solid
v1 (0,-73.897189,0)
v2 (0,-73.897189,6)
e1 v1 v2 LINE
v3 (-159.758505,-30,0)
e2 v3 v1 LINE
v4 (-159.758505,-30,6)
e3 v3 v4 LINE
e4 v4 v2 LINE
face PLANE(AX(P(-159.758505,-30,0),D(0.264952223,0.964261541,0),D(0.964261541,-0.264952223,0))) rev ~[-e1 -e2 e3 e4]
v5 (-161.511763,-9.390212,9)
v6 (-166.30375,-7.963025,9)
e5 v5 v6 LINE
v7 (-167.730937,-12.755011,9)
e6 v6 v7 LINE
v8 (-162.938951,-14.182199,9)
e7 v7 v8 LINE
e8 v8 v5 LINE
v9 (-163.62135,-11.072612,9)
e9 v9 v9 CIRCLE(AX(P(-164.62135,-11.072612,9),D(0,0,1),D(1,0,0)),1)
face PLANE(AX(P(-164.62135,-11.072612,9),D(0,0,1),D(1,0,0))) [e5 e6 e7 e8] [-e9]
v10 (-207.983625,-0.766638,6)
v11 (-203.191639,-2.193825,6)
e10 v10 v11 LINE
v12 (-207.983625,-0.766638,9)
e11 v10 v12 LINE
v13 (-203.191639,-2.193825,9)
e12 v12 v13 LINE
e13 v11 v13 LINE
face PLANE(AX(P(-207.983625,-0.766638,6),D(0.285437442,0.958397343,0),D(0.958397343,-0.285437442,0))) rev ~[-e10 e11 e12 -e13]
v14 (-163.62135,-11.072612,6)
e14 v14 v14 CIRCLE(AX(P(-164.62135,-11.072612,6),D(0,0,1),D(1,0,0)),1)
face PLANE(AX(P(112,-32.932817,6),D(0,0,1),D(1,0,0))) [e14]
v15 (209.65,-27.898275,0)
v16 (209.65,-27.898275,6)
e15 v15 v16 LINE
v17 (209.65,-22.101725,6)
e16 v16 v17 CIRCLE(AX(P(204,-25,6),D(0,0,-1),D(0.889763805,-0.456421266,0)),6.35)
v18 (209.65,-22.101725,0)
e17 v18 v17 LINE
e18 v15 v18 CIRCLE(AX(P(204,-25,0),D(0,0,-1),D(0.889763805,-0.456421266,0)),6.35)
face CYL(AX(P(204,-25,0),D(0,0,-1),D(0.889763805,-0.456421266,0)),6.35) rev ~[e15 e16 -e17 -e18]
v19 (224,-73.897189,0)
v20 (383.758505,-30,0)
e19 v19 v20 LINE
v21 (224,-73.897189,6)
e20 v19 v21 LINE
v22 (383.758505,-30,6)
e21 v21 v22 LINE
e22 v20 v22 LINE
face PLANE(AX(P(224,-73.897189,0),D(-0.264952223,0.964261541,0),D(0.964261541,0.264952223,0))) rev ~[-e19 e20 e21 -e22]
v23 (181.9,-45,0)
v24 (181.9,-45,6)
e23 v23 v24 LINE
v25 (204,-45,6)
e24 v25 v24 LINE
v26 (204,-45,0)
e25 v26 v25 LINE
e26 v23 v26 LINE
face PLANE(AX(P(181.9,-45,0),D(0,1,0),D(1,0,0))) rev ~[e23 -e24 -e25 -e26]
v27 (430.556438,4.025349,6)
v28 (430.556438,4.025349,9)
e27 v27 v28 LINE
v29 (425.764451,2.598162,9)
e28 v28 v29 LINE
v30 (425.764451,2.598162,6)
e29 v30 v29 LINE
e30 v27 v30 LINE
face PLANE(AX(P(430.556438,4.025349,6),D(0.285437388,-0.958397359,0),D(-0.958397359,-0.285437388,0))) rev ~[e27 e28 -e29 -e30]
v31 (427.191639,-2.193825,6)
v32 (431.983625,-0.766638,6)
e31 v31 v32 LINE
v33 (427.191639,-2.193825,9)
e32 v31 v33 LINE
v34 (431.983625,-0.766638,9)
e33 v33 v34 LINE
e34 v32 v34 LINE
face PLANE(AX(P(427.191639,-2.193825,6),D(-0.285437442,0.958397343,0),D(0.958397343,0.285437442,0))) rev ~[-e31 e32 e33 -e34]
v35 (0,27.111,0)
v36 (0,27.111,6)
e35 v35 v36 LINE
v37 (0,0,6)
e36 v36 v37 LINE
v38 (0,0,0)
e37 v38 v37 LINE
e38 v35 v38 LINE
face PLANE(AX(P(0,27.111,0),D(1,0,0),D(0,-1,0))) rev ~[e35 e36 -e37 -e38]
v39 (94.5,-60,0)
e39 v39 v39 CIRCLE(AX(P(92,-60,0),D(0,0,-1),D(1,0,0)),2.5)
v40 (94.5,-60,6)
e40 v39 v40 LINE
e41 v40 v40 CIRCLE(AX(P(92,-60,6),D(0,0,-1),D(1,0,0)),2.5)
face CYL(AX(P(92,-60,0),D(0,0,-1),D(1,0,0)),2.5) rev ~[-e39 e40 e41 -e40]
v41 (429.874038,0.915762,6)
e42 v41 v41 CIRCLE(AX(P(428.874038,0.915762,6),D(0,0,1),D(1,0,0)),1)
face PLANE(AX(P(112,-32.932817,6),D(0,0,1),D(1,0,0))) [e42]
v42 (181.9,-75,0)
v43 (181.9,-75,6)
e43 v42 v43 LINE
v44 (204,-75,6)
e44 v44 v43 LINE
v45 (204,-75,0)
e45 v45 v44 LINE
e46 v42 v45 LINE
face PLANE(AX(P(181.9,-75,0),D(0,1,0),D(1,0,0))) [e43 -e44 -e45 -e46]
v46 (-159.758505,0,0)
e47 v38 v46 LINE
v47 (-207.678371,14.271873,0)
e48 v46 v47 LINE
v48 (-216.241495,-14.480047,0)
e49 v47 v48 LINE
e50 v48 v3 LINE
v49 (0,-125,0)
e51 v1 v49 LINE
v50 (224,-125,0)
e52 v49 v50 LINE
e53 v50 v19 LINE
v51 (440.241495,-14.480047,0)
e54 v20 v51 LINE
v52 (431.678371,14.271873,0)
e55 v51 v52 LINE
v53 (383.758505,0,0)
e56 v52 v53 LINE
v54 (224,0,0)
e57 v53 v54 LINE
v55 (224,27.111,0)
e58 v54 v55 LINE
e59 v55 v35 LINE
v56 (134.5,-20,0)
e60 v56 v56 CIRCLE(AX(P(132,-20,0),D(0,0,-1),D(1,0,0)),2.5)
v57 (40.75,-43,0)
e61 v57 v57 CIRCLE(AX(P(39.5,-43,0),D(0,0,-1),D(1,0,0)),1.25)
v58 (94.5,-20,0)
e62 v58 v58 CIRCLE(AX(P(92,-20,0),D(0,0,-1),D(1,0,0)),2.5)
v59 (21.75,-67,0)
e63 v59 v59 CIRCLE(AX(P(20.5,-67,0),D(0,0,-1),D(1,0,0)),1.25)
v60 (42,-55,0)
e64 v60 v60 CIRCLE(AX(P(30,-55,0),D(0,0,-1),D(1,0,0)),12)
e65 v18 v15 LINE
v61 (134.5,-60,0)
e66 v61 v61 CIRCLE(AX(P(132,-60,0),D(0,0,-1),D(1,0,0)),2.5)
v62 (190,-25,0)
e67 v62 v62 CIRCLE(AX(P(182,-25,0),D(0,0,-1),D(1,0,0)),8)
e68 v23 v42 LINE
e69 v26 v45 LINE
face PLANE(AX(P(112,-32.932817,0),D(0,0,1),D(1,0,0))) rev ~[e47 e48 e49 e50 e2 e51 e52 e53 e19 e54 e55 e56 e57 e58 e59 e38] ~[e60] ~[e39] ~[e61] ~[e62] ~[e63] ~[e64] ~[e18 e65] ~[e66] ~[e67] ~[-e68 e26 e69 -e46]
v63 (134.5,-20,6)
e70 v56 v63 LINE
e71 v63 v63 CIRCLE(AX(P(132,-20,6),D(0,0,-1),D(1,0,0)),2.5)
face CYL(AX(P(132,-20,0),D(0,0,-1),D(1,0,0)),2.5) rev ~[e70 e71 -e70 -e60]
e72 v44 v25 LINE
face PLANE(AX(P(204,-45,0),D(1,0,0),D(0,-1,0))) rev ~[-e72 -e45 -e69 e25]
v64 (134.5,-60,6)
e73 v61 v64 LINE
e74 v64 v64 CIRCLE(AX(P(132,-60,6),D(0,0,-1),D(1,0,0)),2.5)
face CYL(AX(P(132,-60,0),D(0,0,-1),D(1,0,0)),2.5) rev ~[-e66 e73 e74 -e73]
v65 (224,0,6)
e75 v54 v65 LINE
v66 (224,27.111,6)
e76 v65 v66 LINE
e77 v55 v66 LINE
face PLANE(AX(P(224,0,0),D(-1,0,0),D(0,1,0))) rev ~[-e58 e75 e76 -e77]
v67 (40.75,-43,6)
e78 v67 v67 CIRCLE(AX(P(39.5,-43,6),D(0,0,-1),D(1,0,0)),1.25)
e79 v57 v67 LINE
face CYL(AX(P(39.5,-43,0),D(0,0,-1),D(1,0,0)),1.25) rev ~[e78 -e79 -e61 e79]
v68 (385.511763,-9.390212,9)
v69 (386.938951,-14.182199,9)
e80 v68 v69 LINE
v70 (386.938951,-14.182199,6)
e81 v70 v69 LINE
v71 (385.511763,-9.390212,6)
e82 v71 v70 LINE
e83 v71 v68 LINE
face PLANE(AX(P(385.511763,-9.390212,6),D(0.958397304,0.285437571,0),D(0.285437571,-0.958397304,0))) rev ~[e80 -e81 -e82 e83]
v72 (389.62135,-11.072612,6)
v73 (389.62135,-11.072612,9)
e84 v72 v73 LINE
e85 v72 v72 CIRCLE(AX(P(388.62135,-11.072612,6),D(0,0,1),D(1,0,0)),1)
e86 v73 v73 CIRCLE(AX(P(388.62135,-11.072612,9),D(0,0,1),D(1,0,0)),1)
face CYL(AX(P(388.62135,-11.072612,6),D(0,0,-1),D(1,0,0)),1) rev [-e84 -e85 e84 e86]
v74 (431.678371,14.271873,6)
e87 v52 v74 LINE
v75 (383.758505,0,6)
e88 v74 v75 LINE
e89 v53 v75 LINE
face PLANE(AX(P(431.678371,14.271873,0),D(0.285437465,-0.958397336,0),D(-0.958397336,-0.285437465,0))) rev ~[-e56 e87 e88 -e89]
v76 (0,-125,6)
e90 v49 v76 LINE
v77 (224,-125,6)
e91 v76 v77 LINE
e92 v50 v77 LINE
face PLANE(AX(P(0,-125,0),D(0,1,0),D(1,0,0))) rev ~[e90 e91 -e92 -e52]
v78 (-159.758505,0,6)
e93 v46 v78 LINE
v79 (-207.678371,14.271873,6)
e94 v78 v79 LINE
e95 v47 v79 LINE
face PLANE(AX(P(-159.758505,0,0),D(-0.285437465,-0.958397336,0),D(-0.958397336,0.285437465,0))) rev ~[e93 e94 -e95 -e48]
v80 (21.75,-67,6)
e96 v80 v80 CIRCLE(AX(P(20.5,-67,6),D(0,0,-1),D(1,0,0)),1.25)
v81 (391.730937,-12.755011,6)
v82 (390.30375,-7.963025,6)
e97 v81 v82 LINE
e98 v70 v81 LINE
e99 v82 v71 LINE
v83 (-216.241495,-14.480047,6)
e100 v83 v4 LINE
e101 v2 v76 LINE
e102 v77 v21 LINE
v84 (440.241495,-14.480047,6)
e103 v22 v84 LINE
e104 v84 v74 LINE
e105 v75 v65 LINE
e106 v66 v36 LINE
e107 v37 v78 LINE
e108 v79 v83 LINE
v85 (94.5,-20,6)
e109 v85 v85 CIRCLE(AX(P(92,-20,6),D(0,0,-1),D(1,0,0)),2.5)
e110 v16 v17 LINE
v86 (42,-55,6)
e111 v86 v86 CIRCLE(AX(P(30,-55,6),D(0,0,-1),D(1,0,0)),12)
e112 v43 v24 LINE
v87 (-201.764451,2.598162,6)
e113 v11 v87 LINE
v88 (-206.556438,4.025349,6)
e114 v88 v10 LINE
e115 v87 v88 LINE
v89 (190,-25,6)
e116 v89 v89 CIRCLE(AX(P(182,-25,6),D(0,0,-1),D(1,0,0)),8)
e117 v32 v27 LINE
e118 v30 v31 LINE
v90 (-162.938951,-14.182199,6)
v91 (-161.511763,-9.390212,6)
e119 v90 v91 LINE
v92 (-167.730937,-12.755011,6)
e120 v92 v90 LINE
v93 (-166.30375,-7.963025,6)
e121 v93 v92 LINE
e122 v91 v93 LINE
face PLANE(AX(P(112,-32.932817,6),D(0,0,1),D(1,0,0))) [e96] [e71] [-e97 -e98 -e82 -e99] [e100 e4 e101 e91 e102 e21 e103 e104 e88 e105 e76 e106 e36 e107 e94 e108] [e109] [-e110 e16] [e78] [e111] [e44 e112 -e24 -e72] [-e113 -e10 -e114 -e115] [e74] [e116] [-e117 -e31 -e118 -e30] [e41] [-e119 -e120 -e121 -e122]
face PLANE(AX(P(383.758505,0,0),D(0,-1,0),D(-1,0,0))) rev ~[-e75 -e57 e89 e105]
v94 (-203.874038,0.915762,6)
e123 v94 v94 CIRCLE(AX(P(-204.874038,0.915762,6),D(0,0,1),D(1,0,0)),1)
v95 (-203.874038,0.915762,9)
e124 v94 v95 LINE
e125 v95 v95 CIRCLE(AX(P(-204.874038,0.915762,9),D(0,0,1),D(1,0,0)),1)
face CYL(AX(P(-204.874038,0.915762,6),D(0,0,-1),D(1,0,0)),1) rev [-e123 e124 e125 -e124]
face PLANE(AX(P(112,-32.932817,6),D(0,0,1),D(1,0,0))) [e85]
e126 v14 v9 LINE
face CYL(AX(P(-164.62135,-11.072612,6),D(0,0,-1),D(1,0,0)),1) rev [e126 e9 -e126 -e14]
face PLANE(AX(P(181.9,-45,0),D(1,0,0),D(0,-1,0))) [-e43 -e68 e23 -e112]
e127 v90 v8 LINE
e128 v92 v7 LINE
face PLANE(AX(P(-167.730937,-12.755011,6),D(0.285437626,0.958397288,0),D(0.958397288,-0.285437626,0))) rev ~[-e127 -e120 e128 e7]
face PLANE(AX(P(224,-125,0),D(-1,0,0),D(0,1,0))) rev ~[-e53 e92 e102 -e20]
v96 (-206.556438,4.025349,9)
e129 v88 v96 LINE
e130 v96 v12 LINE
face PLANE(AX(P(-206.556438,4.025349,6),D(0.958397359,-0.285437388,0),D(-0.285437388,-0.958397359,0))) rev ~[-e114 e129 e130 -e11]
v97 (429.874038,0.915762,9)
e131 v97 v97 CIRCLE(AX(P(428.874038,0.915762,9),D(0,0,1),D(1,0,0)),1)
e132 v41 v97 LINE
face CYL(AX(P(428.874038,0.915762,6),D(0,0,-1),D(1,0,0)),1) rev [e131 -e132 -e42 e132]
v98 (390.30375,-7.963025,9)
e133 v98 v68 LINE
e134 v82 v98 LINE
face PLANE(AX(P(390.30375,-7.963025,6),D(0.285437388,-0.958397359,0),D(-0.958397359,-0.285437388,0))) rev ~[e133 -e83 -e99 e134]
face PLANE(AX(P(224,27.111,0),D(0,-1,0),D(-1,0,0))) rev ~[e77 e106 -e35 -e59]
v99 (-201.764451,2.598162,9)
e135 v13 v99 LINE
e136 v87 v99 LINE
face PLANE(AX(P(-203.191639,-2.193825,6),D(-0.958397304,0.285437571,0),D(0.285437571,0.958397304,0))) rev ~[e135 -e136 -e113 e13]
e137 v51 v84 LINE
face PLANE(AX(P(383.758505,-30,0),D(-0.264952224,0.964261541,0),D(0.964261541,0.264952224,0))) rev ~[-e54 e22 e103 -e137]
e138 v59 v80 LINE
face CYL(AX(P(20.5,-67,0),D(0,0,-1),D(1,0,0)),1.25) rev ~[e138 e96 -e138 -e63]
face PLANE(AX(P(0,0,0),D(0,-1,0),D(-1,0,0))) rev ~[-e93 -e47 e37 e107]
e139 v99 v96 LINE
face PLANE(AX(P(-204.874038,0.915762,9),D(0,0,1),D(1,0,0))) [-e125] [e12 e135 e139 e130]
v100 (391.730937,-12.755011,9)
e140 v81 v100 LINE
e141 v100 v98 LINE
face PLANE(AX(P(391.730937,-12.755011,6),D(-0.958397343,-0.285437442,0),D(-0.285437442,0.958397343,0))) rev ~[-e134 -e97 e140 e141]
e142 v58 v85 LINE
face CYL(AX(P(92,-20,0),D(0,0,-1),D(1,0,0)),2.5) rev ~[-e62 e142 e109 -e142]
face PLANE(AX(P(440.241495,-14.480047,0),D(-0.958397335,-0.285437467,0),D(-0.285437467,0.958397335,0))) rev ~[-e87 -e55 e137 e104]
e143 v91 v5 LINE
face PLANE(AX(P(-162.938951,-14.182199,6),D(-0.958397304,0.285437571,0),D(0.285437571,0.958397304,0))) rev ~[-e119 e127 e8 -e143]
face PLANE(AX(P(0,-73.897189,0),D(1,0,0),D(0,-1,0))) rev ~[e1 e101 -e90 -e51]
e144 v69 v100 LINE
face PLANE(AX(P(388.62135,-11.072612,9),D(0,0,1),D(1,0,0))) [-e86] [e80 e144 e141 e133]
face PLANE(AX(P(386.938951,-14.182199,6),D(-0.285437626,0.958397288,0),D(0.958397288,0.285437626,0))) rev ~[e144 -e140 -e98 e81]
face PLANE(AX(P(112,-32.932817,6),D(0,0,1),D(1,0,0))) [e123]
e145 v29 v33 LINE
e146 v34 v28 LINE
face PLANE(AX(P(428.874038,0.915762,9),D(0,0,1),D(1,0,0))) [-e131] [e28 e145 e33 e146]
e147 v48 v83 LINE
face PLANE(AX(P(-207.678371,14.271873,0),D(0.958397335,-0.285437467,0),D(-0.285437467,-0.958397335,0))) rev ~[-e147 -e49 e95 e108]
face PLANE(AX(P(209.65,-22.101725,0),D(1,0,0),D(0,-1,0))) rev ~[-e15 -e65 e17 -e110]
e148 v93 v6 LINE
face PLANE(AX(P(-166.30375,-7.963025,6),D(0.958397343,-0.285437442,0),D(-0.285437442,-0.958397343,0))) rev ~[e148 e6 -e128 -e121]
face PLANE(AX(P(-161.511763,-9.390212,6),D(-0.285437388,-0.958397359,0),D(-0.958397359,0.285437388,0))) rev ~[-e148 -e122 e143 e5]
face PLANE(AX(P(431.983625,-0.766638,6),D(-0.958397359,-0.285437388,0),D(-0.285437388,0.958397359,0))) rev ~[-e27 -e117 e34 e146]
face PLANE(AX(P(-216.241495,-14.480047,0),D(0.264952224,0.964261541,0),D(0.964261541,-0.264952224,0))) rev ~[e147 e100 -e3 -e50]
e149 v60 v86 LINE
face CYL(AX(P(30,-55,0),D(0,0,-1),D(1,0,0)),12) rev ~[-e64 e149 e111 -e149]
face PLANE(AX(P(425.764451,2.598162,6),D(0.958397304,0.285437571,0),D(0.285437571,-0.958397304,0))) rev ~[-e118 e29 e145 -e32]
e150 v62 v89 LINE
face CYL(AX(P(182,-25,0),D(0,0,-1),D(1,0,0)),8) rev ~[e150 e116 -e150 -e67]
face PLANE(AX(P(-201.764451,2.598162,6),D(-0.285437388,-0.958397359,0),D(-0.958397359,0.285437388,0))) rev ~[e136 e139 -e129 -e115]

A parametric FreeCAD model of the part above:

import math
import FreeCAD as App
import Part
import Sketcher
Q = App.Units.Quantity


def add_polygon(sketch, points):
    """Adds a closed chain of lines whose ends are joined by coincident constraints."""
    first, n = sketch.GeometryCount, len(points)
    for a, b in zip(points, points[1:] + points[:1]):
        sketch.addGeometry(Part.LineSegment(App.Vector(*a, 0), App.Vector(*b, 0)), False)
    for i in range(n):
        sketch.addConstraint(Sketcher.Constraint("Coincident", first + i, 2, first + (i + 1) % n, 1))

doc = App.newDocument("Part")
body = doc.addObject("PartDesign::Body", "Body")

sketch1 = body.newObject("Sketcher::SketchObject", "Sketch")
sketch1.AttachmentSupport = (doc.getObject("XY_Plane"), [""])
sketch1.MapMode = "FlatFace"
add_polygon(sketch1, [(0, -73.897189), (0, -125), (224, -125), (224, -73.897189), (383.758505, -30), (440.241495, -14.480047), (431.678371, 14.271873), (383.758505, 0), (224, 0), (224, 27.111), (0, 27.111), (0, 0), (-159.758505, 0), (-207.678371, 14.271873), (-216.241495, -14.480047), (-159.758505, -30)])
sketch1.addConstraint([
    Sketcher.Constraint("Vertical", 0),
    Sketcher.Constraint("Horizontal", 1),
    Sketcher.Constraint("Vertical", 2),
    Sketcher.Constraint("Horizontal", 7),
    Sketcher.Constraint("Vertical", 8),
    Sketcher.Constraint("Horizontal", 9),
    Sketcher.Constraint("Vertical", 10),
    Sketcher.Constraint("Horizontal", 11),
    Sketcher.Constraint("Coincident", 10, 2, -1, 1),
    Sketcher.Constraint("PointOnObject", 0, 2, -2),
    Sketcher.Constraint("PointOnObject", 6, 2, -1),
    Sketcher.Constraint("Parallel", 3, 4),
    Sketcher.Constraint("Perpendicular", 5, 6),
    Sketcher.Constraint("Perpendicular", 12, 13),
    Sketcher.Constraint("Parallel", 14, 15),
    Sketcher.Constraint("Horizontal", 5, 2, 12, 2),
    Sketcher.Constraint("Horizontal", 4, 2, 13, 2),
    Sketcher.Constraint("Horizontal", 3, 2, 14, 2),
    Sketcher.Constraint("Horizontal", 2, 2, 15, 2),
    Sketcher.Constraint("Vertical", 3, 2, 6, 2),
    Sketcher.Constraint("Vertical", 2, 2, 7, 2),
    Sketcher.Constraint("Vertical", 11, 2, 14, 2),
    Sketcher.Constraint("Equal", 7, 11),
    Sketcher.Constraint("DistanceX", 1, 1, 1, 2, Q("224 mm")),
    Sketcher.Constraint("Distance", 5, Q("30 mm")),
    Sketcher.Constraint("Distance", 6, Q("49.999999 mm")),
    Sketcher.Constraint("DistanceY", 0, 2, -1, 1, Q("125 mm")),
    Sketcher.Constraint("DistanceY", 3, 2, -1, 1, Q("30 mm")),
    Sketcher.Constraint("DistanceY", 8, 1, 8, 2, Q("27.111 mm")),
    Sketcher.Constraint("DistanceY", 0, 2, 0, 1, Q("51.102811 mm")),
    Sketcher.Constraint("Distance", 3, Q("165.67964 mm")),
])
pad1 = body.newObject("PartDesign::Pad", "Pad")
pad1.Profile = sketch1
pad1.Length = 6

sketch2 = body.newObject("Sketcher::SketchObject", "Sketch001")
sketch2.AttachmentSupport = (doc.getObject("XY_Plane"), [""])
sketch2.MapMode = "FlatFace"
sketch2.addGeometry([
    Part.Circle(App.Vector(132, -60, 0), App.Vector(0, 0, 1), 2.5),
    Part.Circle(App.Vector(132, -20, 0), App.Vector(0, 0, 1), 2.5),
    Part.Circle(App.Vector(92, -60, 0), App.Vector(0, 0, 1), 2.5),
    Part.Circle(App.Vector(92, -20, 0), App.Vector(0, 0, 1), 2.5),
], False)
sketch2.addConstraint([
    Sketcher.Constraint("Equal", 0, 1),
    Sketcher.Constraint("Equal", 1, 2),
    Sketcher.Constraint("Equal", 2, 3),
    Sketcher.Constraint("Horizontal", 0, 3, 2, 3),
    Sketcher.Constraint("Horizontal", 1, 3, 3, 3),
    Sketcher.Constraint("Vertical", 0, 3, 1, 3),
    Sketcher.Constraint("Vertical", 2, 3, 3, 3),
    Sketcher.Constraint("Diameter", 0, Q("5 mm")),
    Sketcher.Constraint("DistanceX", -1, 1, 0, 3, Q("132 mm")),
    Sketcher.Constraint("DistanceY", 0, 3, -1, 1, Q("60 mm")),
    Sketcher.Constraint("DistanceY", 1, 3, -1, 1, Q("20 mm")),
    Sketcher.Constraint("DistanceX", -1, 1, 2, 3, Q("92 mm")),
])
pocket1 = body.newObject("PartDesign::Pocket", "Pocket")
pocket1.Profile = sketch2
pocket1.Length = 25
pocket1.Reversed = True

sketch3 = body.newObject("Sketcher::SketchObject", "Sketch002")
sketch3.AttachmentSupport = (doc.getObject("XY_Plane"), [""])
sketch3.MapMode = "FlatFace"
add_polygon(sketch3, [(181.9, -75), (181.9, -45), (204, -45), (204, -75)])
sketch3.addConstraint([
    Sketcher.Constraint("Vertical", 0),
    Sketcher.Constraint("Horizontal", 1),
    Sketcher.Constraint("Vertical", 2),
    Sketcher.Constraint("Horizontal", 3),
    Sketcher.Constraint("DistanceY", 0, 1, 0, 2, Q("30 mm")),
    Sketcher.Constraint("DistanceX", 1, 1, 1, 2, Q("22.1 mm")),
    Sketcher.Constraint("DistanceY", 0, 2, -1, 1, Q("45 mm")),
    Sketcher.Constraint("DistanceX", -1, 1, 1, 2, Q("204 mm")),
])
pocket2 = body.newObject("PartDesign::Pocket", "Pocket001")
pocket2.Profile = sketch3
pocket2.Length = 25
pocket2.Reversed = True

sketch4 = body.newObject("Sketcher::SketchObject", "Sketch003")
sketch4.AttachmentSupport = (doc.getObject("XY_Plane"), [""])
sketch4.MapMode = "FlatFace"
sketch4.addGeometry([
    Part.LineSegment(App.Vector(209.65, -22.101725, 0), App.Vector(209.65, -27.898275, 0)),
    Part.ArcOfCircle(Part.Circle(App.Vector(204, -25, 0), App.Vector(0, 0, 1), 6.35), math.radians(27.156418), math.radians(332.843582)),
    Part.Circle(App.Vector(182, -25, 0), App.Vector(0, 0, 1), 8),
    Part.Circle(App.Vector(30, -55, 0), App.Vector(0, 0, 1), 12),
    Part.Circle(App.Vector(20.5, -67, 0), App.Vector(0, 0, 1), 1.25),
    Part.Circle(App.Vector(39.5, -43, 0), App.Vector(0, 0, 1), 1.25),
], False)
sketch4.addConstraint([
    Sketcher.Constraint("Coincident", 0, 1, 1, 1),
    Sketcher.Constraint("Coincident", 1, 2, 0, 2),
    Sketcher.Constraint("Vertical", 0),
    Sketcher.Constraint("Equal", 4, 5),
    Sketcher.Constraint("Horizontal", 1, 3, 2, 3),
    Sketcher.Constraint("Diameter", 2, Q("16 mm")),
    Sketcher.Constraint("Diameter", 3, Q("24 mm")),
    Sketcher.Constraint("Diameter", 4, Q("2.5 mm")),
    Sketcher.Constraint("Radius", 1, Q("6.35 mm")),
    Sketcher.Constraint("DistanceX", -1, 1, 1, 3, Q("204 mm")),
    Sketcher.Constraint("DistanceY", 1, 3, -1, 1, Q("25 mm")),
    Sketcher.Constraint("DistanceX", -1, 1, 2, 3, Q("182 mm")),
    Sketcher.Constraint("DistanceX", -1, 1, 3, 3, Q("30 mm")),
    Sketcher.Constraint("DistanceY", 3, 3, -1, 1, Q("55 mm")),
    Sketcher.Constraint("DistanceY", 4, 3, -1, 1, Q("67 mm")),
    Sketcher.Constraint("DistanceY", 5, 3, -1, 1, Q("43 mm")),
    Sketcher.Constraint("DistanceX", 4, 3, 5, 3, Q("19 mm")),
    Sketcher.Constraint("DistanceX", -1, 1, 4, 3, Q("20.5 mm")),
    Sketcher.Constraint("DistanceX", -1, 1, 0, 1, Q("209.65 mm")),
])
pocket3 = body.newObject("PartDesign::Pocket", "Pocket002")
pocket3.Profile = sketch4
pocket3.Length = 25
pocket3.Reversed = True

sketch5 = body.newObject("Sketcher::SketchObject", "Sketch004")
sketch5.AttachmentSupport = (doc.getObject("XY_Plane"), [""])
sketch5.MapMode = "FlatFace"
sketch5.AttachmentOffset = App.Placement(App.Vector(0, 0, 6), App.Rotation())
add_polygon(sketch5, [(430.556438, 4.025349), (425.764451, 2.598162), (427.191639, -2.193825), (431.983625, -0.766638)])
sketch5.addGeometry(Part.Circle(App.Vector(428.874038, 0.915762, 0), App.Vector(0, 0, 1), 1), False)
add_polygon(sketch5, [(390.30375, -7.963025), (385.511763, -9.390212), (386.938951, -14.182199), (391.730937, -12.755011)])
sketch5.addGeometry(Part.Circle(App.Vector(388.62135, -11.072612, 0), App.Vector(0, 0, 1), 1), False)
sketch5.addConstraint([
    Sketcher.Constraint("Equal", 4, 9),
    Sketcher.Constraint("Perpendicular", 0, 1),
    Sketcher.Constraint("Perpendicular", 1, 2),
    Sketcher.Constraint("Perpendicular", 2, 3),
    Sketcher.Constraint("Perpendicular", 3, 5),
    Sketcher.Constraint("Perpendicular", 5, 6),
    Sketcher.Constraint("Perpendicular", 6, 7),
    Sketcher.Constraint("Perpendicular", 7, 8),
    Sketcher.Constraint("Equal", 0, 1),
    Sketcher.Constraint("Equal", 3, 5),
    Sketcher.Constraint("Equal", 5, 6),
    Sketcher.Constraint("Diameter", 4, Q("2 mm")),
    Sketcher.Constraint("Distance", 0, Q("5 mm")),
    Sketcher.Constraint("DistanceY", 6, 2, -1, 1, Q("14.182199 mm")),
    Sketcher.Constraint("DistanceY", 4, 3, 0, 2, Q("1.6824 mm")),
    Sketcher.Constraint("DistanceX", 9, 3, 0, 2, Q("37.143101 mm")),
    Sketcher.Constraint("DistanceX", 1, 2, 4, 3, Q("1.682399 mm")),
    Sketcher.Constraint("DistanceY", 2, 2, 4, 3, Q("1.6824 mm")),
    Sketcher.Constraint("DistanceY", 9, 3, 5, 2, Q("1.6824 mm")),
    Sketcher.Constraint("DistanceX", 6, 2, 9, 3, Q("1.682399 mm")),
    Sketcher.Constraint("DistanceX", -1, 1, 4, 3, Q("428.874038 mm")),
    Sketcher.Constraint("DistanceY", -1, 1, 4, 3, Q("0.915762 mm")),
])
pad2 = body.newObject("PartDesign::Pad", "Pad001")
pad2.Profile = sketch5
pad2.Length = 3

sketch6 = body.newObject("Sketcher::SketchObject", "Sketch005")
sketch6.AttachmentSupport = (doc.getObject("XY_Plane"), [""])
sketch6.MapMode = "FlatFace"
sketch6.AttachmentOffset = App.Placement(App.Vector(0, 0, 6), App.Rotation())
add_polygon(sketch6, [(-203.191639, -2.193825), (-201.764451, 2.598162), (-206.556438, 4.025349), (-207.983625, -0.766638)])
sketch6.addGeometry(Part.Circle(App.Vector(-204.874038, 0.915762, 0), App.Vector(0, 0, 1), 1), False)
add_polygon(sketch6, [(-162.938951, -14.182199), (-161.511763, -9.390212), (-166.30375, -7.963025), (-167.730937, -12.755011)])
sketch6.addGeometry(Part.Circle(App.Vector(-164.62135, -11.072612, 0), App.Vector(0, 0, 1), 1), False)
sketch6.addConstraint([
    Sketcher.Constraint("Equal", 4, 9),
    Sketcher.Constraint("Perpendicular", 0, 1),
    Sketcher.Constraint("Perpendicular", 1, 2),
    Sketcher.Constraint("Perpendicular", 2, 3),
    Sketcher.Constraint("Perpendicular", 3, 5),
    Sketcher.Constraint("Perpendicular", 5, 6),
    Sketcher.Constraint("Perpendicular", 6, 7),
    Sketcher.Constraint("Perpendicular", 7, 8),
    Sketcher.Constraint("Equal", 0, 1),
    Sketcher.Constraint("Equal", 3, 5),
    Sketcher.Constraint("Equal", 5, 6),
    Sketcher.Constraint("Diameter", 4, Q("2 mm")),
    Sketcher.Constraint("Distance", 0, Q("5 mm")),
    Sketcher.Constraint("DistanceY", 8, 2, -1, 1, Q("14.182199 mm")),
    Sketcher.Constraint("DistanceY", 4, 3, 0, 2, Q("1.6824 mm")),
    Sketcher.Constraint("DistanceX", 0, 2, 9, 3, Q("37.143101 mm")),
    Sketcher.Constraint("DistanceX", 1, 2, 4, 3, Q("1.6824 mm")),
    Sketcher.Constraint("DistanceY", 2, 2, 4, 3, Q("1.6824 mm")),
    Sketcher.Constraint("DistanceY", 9, 3, 5, 2, Q("1.6824 mm")),
    Sketcher.Constraint("DistanceX", 6, 2, 9, 3, Q("1.6824 mm")),
    Sketcher.Constraint("DistanceY", 6, 2, 3, 2, Q("5.7692 mm")),
    Sketcher.Constraint("DistanceX", 4, 3, -1, 1, Q("204.874038 mm")),
])
pad3 = body.newObject("PartDesign::Pad", "Pad002")
pad3.Profile = sketch6
pad3.Length = 3

doc.recompute()
